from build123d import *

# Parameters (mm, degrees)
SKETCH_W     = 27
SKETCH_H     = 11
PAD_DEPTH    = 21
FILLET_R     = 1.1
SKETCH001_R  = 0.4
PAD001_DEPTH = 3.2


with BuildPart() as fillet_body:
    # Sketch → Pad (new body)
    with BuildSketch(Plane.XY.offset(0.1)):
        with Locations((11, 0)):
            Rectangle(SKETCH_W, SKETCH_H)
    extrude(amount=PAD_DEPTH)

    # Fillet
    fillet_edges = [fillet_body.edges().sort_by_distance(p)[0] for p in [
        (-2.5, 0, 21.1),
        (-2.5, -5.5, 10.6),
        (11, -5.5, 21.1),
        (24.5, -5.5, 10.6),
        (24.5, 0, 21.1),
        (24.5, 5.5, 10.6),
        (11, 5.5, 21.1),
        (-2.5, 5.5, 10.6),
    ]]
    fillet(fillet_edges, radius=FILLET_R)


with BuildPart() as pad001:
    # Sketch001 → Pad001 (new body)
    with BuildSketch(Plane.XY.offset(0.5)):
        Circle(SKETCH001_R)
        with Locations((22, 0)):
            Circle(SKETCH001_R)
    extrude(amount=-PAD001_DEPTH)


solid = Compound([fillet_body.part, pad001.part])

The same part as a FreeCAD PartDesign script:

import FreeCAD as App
import Part
import Sketcher

V = App.Vector
Q = App.Units.Quantity


def edges_at(feature, points):
    """Names of the edges that pass closest to the given points."""
    edges = feature.Shape.Edges
    near = lambda p: min(range(len(edges)), key=lambda i: edges[i].distToShape(Part.Vertex(*p))[0])
    return sorted({f"Edge{near(p) + 1}" for p in points})

doc = App.newDocument("Part")
body = doc.addObject("PartDesign::Body", "Body")

# Sketch on XY plane
sketch1 = body.newObject("Sketcher::SketchObject", "Sketch")
sketch1.AttachmentSupport = (doc.getObject("XY_Plane"), [""])
sketch1.MapMode = "FlatFace"
sketch1.AttachmentOffset = App.Placement(V(0, 0, 0.1), App.Rotation())
sketch1.addGeometry(Part.LineSegment(V(-2, 6, 0), V(-2, -6, 0)), False)
sketch1.addGeometry(Part.LineSegment(V(-2, -6, 0), V(24, -6, 0)), False)
sketch1.addGeometry(Part.LineSegment(V(24, -6, 0), V(24, 6, 0)), False)
sketch1.addGeometry(Part.LineSegment(V(24, 6, 0), V(-2, 6, 0)), False)
sketch1.addConstraint(Sketcher.Constraint("Coincident", 0, 2, 1, 1))
sketch1.addConstraint(Sketcher.Constraint("Coincident", 1, 2, 2, 1))
sketch1.addConstraint(Sketcher.Constraint("Coincident", 2, 2, 3, 1))
sketch1.addConstraint(Sketcher.Constraint("Coincident", 3, 2, 0, 1))
sketch1.addConstraint(Sketcher.Constraint("Vertical", 0))
sketch1.addConstraint(Sketcher.Constraint("Horizontal", 1))
sketch1.addConstraint(Sketcher.Constraint("Vertical", 2))
sketch1.addConstraint(Sketcher.Constraint("Horizontal", 3))
sketch1.addConstraint(Sketcher.Constraint("DistanceX", 1, 1, 1, 2, Q("27 mm")))
sketch1.addConstraint(Sketcher.Constraint("DistanceY", 0, 2, 0, 1, Q("11 mm")))
sketch1.addConstraint(Sketcher.Constraint("DistanceX", 0, 2, -1, 1, Q("2.5 mm")))
sketch1.addConstraint(Sketcher.Constraint("DistanceY", 0, 2, -1, 1, Q("5.5 mm")))
pad1 = body.newObject("PartDesign::Pad", "Pad")
pad1.Profile = sketch1
pad1.Length = 21
doc.recompute()

fillet = body.newObject("PartDesign::Fillet", "Fillet")
fillet.Base = (pad1, edges_at(pad1, [
    (-2.5, 0, 21.1),
    (-2.5, -5.5, 10.6),
    (11, -5.5, 21.1),
    (24.5, -5.5, 10.6),
    (24.5, 0, 21.1),
    (24.5, 5.5, 10.6),
    (11, 5.5, 21.1),
    (-2.5, 5.5, 10.6),
]))
fillet.Radius = 1.1
body2 = doc.addObject("PartDesign::Body", "Body001")
body2.AllowCompound = True

# Sketch on XY plane
sketch2 = body2.newObject("Sketcher::SketchObject", "Sketch001")
sketch2.AttachmentSupport = (doc.getObject("XY_Plane001"), [""])
sketch2.MapMode = "FlatFace"
sketch2.AttachmentOffset = App.Placement(V(0, 0, 0.5), App.Rotation())
sketch2.addGeometry(Part.Circle(V(0, 0, 0), V(0, 0, 1), 0.4), False)
sketch2.addGeometry(Part.Circle(V(22, 0, 0), V(0, 0, 1), 0.4), False)
sketch2.addConstraint(Sketcher.Constraint("Coincident", 0, 3, -1, 1))
sketch2.addConstraint(Sketcher.Constraint("Equal", 0, 1))
sketch2.addConstraint(Sketcher.Constraint("PointOnObject", 1, 3, -1))
sketch2.addConstraint(Sketcher.Constraint("Diameter", 0, Q("0.8 mm")))
sketch2.addConstraint(Sketcher.Constraint("DistanceX", -1, 1, 1, 3, Q("22 mm")))
pad2 = body2.newObject("PartDesign::Pad", "Pad001")
pad2.Profile = sketch2
pad2.Length = 3.2
pad2.Reversed = True

doc.recompute()
